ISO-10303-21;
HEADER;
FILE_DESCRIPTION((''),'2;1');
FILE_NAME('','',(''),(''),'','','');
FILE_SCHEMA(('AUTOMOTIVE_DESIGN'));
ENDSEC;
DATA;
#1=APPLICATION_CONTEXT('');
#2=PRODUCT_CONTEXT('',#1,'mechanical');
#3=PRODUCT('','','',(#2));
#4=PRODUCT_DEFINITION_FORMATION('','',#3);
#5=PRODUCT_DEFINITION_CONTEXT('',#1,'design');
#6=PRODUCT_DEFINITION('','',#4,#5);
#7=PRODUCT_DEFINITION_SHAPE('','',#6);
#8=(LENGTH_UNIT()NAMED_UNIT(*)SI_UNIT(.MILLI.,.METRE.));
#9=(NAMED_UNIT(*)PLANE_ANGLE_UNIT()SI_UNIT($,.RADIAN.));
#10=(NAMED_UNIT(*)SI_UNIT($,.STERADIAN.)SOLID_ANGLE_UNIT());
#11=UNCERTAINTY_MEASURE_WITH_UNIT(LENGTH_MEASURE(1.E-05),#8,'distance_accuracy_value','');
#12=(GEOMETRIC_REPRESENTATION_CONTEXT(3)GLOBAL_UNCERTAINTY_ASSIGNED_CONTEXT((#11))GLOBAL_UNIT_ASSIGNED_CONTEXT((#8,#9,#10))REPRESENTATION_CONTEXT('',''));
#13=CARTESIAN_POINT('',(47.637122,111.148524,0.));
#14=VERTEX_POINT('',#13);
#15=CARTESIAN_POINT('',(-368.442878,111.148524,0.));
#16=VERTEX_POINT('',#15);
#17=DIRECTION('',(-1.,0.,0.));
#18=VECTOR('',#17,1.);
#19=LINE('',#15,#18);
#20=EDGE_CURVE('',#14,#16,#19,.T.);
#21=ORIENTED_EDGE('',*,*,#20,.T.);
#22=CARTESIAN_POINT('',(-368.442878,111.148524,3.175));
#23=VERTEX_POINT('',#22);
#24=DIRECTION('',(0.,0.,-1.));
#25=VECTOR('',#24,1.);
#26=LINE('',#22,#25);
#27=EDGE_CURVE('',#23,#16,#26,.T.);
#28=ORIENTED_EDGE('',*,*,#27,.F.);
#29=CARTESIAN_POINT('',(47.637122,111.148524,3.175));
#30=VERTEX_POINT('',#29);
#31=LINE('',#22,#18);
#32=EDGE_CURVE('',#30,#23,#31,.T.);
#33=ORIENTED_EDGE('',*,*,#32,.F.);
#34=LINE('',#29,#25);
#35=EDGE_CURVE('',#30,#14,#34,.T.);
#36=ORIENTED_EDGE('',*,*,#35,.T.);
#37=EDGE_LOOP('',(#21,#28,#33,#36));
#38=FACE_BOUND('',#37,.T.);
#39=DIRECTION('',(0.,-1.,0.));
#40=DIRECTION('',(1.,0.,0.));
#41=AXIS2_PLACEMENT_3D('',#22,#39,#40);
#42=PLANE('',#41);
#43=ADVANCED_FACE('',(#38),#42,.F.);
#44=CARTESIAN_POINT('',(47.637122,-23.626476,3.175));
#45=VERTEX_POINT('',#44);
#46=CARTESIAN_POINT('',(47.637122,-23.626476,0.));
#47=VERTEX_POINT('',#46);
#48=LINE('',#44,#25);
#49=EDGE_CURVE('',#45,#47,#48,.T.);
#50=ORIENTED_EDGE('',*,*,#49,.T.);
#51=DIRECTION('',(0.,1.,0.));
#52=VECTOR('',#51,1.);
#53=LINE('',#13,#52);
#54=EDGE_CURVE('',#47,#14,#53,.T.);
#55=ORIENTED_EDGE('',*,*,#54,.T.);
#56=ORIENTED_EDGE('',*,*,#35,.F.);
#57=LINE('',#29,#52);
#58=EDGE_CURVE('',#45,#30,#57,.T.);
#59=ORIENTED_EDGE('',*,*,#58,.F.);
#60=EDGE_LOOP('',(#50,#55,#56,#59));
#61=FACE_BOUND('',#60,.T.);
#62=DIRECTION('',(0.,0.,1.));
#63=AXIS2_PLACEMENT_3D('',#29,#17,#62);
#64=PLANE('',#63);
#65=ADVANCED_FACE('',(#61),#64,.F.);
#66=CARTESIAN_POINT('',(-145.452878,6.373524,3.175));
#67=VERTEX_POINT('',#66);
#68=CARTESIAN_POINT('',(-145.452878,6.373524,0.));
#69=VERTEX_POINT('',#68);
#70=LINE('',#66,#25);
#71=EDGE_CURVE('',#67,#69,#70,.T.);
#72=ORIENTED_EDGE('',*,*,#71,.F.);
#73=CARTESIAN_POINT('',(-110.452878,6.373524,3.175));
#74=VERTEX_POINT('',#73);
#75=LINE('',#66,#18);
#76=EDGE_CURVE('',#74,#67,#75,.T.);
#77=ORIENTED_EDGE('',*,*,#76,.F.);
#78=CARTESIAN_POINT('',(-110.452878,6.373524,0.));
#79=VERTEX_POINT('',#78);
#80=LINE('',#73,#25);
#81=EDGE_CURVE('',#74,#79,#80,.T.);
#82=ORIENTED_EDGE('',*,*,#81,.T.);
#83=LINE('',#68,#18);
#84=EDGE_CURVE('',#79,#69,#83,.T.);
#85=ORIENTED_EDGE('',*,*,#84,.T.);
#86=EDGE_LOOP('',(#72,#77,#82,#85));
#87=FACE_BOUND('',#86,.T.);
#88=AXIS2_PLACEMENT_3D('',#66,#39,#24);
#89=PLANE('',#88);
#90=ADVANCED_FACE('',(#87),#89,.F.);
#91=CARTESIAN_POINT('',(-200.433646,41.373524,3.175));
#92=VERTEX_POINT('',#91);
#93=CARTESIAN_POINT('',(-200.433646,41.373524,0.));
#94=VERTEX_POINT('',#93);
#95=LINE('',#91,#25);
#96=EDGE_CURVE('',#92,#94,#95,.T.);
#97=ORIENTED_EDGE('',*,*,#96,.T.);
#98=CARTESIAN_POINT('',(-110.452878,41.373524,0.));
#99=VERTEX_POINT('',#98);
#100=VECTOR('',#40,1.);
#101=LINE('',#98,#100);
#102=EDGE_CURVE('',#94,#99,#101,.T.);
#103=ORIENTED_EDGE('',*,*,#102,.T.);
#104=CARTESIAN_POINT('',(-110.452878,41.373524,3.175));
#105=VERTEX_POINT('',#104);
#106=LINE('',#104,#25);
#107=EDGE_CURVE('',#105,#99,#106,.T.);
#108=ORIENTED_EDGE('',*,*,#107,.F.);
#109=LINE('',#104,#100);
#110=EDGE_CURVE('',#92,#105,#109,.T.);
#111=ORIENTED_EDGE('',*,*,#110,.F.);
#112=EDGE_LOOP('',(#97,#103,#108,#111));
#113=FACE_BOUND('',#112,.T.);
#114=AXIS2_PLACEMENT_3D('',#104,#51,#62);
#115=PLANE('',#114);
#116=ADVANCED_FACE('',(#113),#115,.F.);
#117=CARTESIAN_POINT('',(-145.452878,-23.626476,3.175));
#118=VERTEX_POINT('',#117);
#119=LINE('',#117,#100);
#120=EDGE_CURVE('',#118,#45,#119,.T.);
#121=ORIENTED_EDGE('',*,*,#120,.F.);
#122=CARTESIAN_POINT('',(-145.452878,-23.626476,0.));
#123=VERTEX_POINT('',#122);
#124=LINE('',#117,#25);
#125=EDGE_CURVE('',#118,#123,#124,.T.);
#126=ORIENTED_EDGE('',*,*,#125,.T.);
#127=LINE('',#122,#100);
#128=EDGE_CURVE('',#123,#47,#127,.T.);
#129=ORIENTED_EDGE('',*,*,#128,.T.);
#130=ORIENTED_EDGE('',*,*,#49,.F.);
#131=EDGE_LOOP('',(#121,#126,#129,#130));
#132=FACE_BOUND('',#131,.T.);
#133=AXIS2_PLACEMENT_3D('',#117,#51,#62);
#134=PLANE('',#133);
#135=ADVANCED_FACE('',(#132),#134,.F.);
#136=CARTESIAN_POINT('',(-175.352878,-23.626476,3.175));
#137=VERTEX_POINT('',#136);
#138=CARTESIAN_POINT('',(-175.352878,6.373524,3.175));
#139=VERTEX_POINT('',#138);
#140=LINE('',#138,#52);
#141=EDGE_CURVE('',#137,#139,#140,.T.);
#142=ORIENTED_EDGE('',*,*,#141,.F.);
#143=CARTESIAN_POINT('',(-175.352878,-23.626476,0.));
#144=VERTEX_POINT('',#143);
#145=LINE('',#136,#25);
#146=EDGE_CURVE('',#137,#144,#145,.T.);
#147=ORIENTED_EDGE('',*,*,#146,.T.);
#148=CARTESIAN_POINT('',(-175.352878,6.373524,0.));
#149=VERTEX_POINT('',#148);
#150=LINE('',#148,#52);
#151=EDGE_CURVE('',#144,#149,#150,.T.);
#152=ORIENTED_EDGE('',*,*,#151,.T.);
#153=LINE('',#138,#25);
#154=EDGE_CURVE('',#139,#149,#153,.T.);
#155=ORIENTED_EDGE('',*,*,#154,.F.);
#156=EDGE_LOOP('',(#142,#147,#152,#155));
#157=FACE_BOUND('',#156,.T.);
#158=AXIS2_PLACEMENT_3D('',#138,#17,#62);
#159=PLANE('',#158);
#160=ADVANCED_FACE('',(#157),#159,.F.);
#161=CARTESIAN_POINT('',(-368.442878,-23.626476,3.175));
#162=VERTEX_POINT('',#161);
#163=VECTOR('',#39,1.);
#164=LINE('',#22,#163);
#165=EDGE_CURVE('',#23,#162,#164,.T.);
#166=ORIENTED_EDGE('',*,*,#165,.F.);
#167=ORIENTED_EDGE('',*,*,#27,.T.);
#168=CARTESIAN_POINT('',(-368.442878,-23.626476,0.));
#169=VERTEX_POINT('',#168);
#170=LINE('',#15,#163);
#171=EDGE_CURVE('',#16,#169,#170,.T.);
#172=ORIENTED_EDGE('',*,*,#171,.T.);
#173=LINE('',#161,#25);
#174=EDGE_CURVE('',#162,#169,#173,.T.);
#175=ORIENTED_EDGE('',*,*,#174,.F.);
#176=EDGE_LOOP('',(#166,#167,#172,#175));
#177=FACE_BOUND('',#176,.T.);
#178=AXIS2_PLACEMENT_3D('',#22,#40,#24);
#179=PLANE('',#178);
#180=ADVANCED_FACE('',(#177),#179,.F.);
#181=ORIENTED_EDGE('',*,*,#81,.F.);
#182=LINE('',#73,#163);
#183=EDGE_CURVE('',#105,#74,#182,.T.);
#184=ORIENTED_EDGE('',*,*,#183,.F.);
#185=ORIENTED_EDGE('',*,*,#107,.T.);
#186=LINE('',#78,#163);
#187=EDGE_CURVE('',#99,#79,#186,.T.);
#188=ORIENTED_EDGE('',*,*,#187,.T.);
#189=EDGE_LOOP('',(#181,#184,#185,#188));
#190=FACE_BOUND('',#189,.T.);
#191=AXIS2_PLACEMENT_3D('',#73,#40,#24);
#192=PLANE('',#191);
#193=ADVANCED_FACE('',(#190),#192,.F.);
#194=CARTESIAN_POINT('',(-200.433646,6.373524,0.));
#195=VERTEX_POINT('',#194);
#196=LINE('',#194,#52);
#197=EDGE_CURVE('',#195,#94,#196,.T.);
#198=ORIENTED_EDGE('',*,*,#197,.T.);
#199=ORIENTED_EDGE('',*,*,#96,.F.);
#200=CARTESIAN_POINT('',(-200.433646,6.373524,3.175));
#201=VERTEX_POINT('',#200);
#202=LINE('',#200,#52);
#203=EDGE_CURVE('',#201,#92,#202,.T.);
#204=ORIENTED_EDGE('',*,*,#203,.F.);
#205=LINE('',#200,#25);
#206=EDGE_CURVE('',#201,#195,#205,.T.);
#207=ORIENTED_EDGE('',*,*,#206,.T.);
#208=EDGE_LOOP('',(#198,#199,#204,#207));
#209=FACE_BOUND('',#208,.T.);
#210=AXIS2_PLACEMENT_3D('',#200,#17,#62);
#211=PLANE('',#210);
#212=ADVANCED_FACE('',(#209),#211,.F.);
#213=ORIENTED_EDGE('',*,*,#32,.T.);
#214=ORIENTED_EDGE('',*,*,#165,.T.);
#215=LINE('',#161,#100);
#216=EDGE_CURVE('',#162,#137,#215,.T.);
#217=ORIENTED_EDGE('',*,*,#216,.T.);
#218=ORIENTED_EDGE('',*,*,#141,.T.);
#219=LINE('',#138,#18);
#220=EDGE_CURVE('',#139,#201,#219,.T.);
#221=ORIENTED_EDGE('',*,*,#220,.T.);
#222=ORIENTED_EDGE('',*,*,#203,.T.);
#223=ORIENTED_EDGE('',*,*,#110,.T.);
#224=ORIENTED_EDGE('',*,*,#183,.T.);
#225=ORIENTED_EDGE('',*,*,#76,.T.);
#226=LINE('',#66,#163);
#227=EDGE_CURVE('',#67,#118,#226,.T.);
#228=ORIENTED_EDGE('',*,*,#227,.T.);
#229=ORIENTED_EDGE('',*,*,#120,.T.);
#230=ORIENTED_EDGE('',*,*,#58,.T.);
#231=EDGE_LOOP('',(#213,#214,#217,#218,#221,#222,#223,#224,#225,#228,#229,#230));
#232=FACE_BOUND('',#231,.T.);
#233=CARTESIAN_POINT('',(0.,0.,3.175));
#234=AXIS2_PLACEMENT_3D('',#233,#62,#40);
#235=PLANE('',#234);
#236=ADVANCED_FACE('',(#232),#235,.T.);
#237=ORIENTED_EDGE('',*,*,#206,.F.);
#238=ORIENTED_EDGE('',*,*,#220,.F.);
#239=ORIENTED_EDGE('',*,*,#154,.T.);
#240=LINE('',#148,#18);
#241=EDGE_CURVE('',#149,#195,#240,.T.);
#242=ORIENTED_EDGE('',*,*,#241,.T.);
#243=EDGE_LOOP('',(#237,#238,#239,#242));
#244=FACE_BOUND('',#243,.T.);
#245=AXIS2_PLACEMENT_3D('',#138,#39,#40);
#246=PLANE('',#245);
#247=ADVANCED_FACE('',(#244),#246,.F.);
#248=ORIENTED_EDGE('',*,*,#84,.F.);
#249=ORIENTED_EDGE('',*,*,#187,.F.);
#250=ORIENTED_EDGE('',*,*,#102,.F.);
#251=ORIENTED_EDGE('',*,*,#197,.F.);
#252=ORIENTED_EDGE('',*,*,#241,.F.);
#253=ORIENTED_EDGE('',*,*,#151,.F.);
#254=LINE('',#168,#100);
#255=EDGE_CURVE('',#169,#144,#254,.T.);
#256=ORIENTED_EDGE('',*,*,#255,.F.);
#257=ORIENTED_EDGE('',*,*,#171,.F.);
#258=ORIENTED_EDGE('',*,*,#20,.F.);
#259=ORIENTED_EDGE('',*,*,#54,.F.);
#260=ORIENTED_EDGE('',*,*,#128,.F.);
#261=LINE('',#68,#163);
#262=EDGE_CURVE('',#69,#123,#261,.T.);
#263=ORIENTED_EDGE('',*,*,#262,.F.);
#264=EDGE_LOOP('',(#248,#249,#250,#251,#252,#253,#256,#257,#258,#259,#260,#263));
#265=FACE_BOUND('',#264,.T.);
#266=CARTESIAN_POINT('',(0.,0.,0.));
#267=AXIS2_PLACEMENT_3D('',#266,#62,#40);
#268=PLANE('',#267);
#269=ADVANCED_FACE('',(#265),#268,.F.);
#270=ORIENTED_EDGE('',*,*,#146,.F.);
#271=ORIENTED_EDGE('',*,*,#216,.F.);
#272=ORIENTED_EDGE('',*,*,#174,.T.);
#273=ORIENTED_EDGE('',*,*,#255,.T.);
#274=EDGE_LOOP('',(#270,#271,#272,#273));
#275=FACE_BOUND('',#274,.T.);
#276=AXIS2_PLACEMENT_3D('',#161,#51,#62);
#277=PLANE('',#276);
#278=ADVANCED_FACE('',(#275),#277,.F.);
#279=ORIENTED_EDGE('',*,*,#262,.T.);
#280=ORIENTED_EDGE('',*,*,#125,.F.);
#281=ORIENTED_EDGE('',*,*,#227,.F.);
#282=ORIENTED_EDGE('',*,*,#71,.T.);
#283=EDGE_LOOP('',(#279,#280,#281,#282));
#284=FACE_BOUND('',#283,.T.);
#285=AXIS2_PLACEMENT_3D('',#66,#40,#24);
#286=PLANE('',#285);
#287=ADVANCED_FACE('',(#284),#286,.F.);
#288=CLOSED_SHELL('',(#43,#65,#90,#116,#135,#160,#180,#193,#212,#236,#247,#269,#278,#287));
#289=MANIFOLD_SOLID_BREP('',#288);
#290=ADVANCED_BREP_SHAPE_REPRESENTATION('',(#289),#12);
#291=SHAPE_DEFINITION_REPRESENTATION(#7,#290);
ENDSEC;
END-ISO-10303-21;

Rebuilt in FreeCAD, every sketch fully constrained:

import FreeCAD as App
import Part
import Sketcher
Q = App.Units.Quantity

doc = App.newDocument("Part")
body = doc.addObject("PartDesign::Body", "Body")

sketch1 = body.newObject("Sketcher::SketchObject", "Sketch")
sketch1.AttachmentSupport = (doc.getObject("XY_Plane"), [""])
sketch1.MapMode = "FlatFace"
sketch1.addGeometry([
    Part.LineSegment(App.Vector(48, 111, 0), App.Vector(-368, 111, 0)),
    Part.LineSegment(App.Vector(-368, 111, 0), App.Vector(-368, -24, 0)),
    Part.LineSegment(App.Vector(-368, -24, 0), App.Vector(-175, -24, 0)),
    Part.LineSegment(App.Vector(-175, -24, 0), App.Vector(-175, 6, 0)),
    Part.LineSegment(App.Vector(-175, 6, 0), App.Vector(-200, 6, 0)),
    Part.LineSegment(App.Vector(-200, 6, 0), App.Vector(-200, 41, 0)),
    Part.LineSegment(App.Vector(-200, 41, 0), App.Vector(-110, 41, 0)),
    Part.LineSegment(App.Vector(-110, 41, 0), App.Vector(-110, 6, 0)),
    Part.LineSegment(App.Vector(-110, 6, 0), App.Vector(-145, 6, 0)),
    Part.LineSegment(App.Vector(-145, 6, 0), App.Vector(-145, -24, 0)),
    Part.LineSegment(App.Vector(-145, -24, 0), App.Vector(48, -24, 0)),
    Part.LineSegment(App.Vector(48, -24, 0), App.Vector(48, 111, 0)),
], False)
sketch1.addConstraint([
    Sketcher.Constraint("Coincident", 0, 2, 1, 1),
    Sketcher.Constraint("Coincident", 1, 2, 2, 1),
    Sketcher.Constraint("Coincident", 2, 2, 3, 1),
    Sketcher.Constraint("Coincident", 3, 2, 4, 1),
    Sketcher.Constraint("Coincident", 4, 2, 5, 1),
    Sketcher.Constraint("Coincident", 5, 2, 6, 1),
    Sketcher.Constraint("Coincident", 6, 2, 7, 1),
    Sketcher.Constraint("Coincident", 7, 2, 8, 1),
    Sketcher.Constraint("Coincident", 8, 2, 9, 1),
    Sketcher.Constraint("Coincident", 9, 2, 10, 1),
    Sketcher.Constraint("Coincident", 10, 2, 11, 1),
    Sketcher.Constraint("Coincident", 11, 2, 0, 1),
    Sketcher.Constraint("Horizontal", 0),
    Sketcher.Constraint("Vertical", 1),
    Sketcher.Constraint("Horizontal", 2),
    Sketcher.Constraint("Vertical", 3),
    Sketcher.Constraint("Horizontal", 4),
    Sketcher.Constraint("Vertical", 5),
    Sketcher.Constraint("Horizontal", 6),
    Sketcher.Constraint("Vertical", 7),
    Sketcher.Constraint("Horizontal", 8),
    Sketcher.Constraint("Vertical", 9),
    Sketcher.Constraint("Horizontal", 10),
    Sketcher.Constraint("Vertical", 11),
    Sketcher.Constraint("Horizontal", 4, 2, 7, 2),
    Sketcher.Constraint("Horizontal", 2, 2, 9, 2),
    Sketcher.Constraint("Equal", 2, 10),
    Sketcher.Constraint("Equal", 8, 5),
    Sketcher.Constraint("DistanceX", 8, 2, 8, 1, Q("35 mm")),
    Sketcher.Constraint("DistanceY", 3, 1, 3, 2, Q("30 mm")),
    Sketcher.Constraint("DistanceX", 0, 2, 0, 1, Q("416.08 mm")),
    Sketcher.Constraint("DistanceX", 2, 1, 2, 2, Q("193.09 mm")),
    Sketcher.Constraint("DistanceY", 1, 2, 1, 1, Q("134.775 mm")),
    Sketcher.Constraint("DistanceX", 4, 2, 4, 1, Q("25.080769 mm")),
    Sketcher.Constraint("DistanceX", 0, 2, -1, 1, Q("368.442878 mm")),
    Sketcher.Constraint("DistanceY", -1, 1, 0, 2, Q("111.148524 mm")),
])
pad1 = body.newObject("PartDesign::Pad", "Pad")
pad1.Profile = sketch1
pad1.Length = 3.175

doc.recompute()
